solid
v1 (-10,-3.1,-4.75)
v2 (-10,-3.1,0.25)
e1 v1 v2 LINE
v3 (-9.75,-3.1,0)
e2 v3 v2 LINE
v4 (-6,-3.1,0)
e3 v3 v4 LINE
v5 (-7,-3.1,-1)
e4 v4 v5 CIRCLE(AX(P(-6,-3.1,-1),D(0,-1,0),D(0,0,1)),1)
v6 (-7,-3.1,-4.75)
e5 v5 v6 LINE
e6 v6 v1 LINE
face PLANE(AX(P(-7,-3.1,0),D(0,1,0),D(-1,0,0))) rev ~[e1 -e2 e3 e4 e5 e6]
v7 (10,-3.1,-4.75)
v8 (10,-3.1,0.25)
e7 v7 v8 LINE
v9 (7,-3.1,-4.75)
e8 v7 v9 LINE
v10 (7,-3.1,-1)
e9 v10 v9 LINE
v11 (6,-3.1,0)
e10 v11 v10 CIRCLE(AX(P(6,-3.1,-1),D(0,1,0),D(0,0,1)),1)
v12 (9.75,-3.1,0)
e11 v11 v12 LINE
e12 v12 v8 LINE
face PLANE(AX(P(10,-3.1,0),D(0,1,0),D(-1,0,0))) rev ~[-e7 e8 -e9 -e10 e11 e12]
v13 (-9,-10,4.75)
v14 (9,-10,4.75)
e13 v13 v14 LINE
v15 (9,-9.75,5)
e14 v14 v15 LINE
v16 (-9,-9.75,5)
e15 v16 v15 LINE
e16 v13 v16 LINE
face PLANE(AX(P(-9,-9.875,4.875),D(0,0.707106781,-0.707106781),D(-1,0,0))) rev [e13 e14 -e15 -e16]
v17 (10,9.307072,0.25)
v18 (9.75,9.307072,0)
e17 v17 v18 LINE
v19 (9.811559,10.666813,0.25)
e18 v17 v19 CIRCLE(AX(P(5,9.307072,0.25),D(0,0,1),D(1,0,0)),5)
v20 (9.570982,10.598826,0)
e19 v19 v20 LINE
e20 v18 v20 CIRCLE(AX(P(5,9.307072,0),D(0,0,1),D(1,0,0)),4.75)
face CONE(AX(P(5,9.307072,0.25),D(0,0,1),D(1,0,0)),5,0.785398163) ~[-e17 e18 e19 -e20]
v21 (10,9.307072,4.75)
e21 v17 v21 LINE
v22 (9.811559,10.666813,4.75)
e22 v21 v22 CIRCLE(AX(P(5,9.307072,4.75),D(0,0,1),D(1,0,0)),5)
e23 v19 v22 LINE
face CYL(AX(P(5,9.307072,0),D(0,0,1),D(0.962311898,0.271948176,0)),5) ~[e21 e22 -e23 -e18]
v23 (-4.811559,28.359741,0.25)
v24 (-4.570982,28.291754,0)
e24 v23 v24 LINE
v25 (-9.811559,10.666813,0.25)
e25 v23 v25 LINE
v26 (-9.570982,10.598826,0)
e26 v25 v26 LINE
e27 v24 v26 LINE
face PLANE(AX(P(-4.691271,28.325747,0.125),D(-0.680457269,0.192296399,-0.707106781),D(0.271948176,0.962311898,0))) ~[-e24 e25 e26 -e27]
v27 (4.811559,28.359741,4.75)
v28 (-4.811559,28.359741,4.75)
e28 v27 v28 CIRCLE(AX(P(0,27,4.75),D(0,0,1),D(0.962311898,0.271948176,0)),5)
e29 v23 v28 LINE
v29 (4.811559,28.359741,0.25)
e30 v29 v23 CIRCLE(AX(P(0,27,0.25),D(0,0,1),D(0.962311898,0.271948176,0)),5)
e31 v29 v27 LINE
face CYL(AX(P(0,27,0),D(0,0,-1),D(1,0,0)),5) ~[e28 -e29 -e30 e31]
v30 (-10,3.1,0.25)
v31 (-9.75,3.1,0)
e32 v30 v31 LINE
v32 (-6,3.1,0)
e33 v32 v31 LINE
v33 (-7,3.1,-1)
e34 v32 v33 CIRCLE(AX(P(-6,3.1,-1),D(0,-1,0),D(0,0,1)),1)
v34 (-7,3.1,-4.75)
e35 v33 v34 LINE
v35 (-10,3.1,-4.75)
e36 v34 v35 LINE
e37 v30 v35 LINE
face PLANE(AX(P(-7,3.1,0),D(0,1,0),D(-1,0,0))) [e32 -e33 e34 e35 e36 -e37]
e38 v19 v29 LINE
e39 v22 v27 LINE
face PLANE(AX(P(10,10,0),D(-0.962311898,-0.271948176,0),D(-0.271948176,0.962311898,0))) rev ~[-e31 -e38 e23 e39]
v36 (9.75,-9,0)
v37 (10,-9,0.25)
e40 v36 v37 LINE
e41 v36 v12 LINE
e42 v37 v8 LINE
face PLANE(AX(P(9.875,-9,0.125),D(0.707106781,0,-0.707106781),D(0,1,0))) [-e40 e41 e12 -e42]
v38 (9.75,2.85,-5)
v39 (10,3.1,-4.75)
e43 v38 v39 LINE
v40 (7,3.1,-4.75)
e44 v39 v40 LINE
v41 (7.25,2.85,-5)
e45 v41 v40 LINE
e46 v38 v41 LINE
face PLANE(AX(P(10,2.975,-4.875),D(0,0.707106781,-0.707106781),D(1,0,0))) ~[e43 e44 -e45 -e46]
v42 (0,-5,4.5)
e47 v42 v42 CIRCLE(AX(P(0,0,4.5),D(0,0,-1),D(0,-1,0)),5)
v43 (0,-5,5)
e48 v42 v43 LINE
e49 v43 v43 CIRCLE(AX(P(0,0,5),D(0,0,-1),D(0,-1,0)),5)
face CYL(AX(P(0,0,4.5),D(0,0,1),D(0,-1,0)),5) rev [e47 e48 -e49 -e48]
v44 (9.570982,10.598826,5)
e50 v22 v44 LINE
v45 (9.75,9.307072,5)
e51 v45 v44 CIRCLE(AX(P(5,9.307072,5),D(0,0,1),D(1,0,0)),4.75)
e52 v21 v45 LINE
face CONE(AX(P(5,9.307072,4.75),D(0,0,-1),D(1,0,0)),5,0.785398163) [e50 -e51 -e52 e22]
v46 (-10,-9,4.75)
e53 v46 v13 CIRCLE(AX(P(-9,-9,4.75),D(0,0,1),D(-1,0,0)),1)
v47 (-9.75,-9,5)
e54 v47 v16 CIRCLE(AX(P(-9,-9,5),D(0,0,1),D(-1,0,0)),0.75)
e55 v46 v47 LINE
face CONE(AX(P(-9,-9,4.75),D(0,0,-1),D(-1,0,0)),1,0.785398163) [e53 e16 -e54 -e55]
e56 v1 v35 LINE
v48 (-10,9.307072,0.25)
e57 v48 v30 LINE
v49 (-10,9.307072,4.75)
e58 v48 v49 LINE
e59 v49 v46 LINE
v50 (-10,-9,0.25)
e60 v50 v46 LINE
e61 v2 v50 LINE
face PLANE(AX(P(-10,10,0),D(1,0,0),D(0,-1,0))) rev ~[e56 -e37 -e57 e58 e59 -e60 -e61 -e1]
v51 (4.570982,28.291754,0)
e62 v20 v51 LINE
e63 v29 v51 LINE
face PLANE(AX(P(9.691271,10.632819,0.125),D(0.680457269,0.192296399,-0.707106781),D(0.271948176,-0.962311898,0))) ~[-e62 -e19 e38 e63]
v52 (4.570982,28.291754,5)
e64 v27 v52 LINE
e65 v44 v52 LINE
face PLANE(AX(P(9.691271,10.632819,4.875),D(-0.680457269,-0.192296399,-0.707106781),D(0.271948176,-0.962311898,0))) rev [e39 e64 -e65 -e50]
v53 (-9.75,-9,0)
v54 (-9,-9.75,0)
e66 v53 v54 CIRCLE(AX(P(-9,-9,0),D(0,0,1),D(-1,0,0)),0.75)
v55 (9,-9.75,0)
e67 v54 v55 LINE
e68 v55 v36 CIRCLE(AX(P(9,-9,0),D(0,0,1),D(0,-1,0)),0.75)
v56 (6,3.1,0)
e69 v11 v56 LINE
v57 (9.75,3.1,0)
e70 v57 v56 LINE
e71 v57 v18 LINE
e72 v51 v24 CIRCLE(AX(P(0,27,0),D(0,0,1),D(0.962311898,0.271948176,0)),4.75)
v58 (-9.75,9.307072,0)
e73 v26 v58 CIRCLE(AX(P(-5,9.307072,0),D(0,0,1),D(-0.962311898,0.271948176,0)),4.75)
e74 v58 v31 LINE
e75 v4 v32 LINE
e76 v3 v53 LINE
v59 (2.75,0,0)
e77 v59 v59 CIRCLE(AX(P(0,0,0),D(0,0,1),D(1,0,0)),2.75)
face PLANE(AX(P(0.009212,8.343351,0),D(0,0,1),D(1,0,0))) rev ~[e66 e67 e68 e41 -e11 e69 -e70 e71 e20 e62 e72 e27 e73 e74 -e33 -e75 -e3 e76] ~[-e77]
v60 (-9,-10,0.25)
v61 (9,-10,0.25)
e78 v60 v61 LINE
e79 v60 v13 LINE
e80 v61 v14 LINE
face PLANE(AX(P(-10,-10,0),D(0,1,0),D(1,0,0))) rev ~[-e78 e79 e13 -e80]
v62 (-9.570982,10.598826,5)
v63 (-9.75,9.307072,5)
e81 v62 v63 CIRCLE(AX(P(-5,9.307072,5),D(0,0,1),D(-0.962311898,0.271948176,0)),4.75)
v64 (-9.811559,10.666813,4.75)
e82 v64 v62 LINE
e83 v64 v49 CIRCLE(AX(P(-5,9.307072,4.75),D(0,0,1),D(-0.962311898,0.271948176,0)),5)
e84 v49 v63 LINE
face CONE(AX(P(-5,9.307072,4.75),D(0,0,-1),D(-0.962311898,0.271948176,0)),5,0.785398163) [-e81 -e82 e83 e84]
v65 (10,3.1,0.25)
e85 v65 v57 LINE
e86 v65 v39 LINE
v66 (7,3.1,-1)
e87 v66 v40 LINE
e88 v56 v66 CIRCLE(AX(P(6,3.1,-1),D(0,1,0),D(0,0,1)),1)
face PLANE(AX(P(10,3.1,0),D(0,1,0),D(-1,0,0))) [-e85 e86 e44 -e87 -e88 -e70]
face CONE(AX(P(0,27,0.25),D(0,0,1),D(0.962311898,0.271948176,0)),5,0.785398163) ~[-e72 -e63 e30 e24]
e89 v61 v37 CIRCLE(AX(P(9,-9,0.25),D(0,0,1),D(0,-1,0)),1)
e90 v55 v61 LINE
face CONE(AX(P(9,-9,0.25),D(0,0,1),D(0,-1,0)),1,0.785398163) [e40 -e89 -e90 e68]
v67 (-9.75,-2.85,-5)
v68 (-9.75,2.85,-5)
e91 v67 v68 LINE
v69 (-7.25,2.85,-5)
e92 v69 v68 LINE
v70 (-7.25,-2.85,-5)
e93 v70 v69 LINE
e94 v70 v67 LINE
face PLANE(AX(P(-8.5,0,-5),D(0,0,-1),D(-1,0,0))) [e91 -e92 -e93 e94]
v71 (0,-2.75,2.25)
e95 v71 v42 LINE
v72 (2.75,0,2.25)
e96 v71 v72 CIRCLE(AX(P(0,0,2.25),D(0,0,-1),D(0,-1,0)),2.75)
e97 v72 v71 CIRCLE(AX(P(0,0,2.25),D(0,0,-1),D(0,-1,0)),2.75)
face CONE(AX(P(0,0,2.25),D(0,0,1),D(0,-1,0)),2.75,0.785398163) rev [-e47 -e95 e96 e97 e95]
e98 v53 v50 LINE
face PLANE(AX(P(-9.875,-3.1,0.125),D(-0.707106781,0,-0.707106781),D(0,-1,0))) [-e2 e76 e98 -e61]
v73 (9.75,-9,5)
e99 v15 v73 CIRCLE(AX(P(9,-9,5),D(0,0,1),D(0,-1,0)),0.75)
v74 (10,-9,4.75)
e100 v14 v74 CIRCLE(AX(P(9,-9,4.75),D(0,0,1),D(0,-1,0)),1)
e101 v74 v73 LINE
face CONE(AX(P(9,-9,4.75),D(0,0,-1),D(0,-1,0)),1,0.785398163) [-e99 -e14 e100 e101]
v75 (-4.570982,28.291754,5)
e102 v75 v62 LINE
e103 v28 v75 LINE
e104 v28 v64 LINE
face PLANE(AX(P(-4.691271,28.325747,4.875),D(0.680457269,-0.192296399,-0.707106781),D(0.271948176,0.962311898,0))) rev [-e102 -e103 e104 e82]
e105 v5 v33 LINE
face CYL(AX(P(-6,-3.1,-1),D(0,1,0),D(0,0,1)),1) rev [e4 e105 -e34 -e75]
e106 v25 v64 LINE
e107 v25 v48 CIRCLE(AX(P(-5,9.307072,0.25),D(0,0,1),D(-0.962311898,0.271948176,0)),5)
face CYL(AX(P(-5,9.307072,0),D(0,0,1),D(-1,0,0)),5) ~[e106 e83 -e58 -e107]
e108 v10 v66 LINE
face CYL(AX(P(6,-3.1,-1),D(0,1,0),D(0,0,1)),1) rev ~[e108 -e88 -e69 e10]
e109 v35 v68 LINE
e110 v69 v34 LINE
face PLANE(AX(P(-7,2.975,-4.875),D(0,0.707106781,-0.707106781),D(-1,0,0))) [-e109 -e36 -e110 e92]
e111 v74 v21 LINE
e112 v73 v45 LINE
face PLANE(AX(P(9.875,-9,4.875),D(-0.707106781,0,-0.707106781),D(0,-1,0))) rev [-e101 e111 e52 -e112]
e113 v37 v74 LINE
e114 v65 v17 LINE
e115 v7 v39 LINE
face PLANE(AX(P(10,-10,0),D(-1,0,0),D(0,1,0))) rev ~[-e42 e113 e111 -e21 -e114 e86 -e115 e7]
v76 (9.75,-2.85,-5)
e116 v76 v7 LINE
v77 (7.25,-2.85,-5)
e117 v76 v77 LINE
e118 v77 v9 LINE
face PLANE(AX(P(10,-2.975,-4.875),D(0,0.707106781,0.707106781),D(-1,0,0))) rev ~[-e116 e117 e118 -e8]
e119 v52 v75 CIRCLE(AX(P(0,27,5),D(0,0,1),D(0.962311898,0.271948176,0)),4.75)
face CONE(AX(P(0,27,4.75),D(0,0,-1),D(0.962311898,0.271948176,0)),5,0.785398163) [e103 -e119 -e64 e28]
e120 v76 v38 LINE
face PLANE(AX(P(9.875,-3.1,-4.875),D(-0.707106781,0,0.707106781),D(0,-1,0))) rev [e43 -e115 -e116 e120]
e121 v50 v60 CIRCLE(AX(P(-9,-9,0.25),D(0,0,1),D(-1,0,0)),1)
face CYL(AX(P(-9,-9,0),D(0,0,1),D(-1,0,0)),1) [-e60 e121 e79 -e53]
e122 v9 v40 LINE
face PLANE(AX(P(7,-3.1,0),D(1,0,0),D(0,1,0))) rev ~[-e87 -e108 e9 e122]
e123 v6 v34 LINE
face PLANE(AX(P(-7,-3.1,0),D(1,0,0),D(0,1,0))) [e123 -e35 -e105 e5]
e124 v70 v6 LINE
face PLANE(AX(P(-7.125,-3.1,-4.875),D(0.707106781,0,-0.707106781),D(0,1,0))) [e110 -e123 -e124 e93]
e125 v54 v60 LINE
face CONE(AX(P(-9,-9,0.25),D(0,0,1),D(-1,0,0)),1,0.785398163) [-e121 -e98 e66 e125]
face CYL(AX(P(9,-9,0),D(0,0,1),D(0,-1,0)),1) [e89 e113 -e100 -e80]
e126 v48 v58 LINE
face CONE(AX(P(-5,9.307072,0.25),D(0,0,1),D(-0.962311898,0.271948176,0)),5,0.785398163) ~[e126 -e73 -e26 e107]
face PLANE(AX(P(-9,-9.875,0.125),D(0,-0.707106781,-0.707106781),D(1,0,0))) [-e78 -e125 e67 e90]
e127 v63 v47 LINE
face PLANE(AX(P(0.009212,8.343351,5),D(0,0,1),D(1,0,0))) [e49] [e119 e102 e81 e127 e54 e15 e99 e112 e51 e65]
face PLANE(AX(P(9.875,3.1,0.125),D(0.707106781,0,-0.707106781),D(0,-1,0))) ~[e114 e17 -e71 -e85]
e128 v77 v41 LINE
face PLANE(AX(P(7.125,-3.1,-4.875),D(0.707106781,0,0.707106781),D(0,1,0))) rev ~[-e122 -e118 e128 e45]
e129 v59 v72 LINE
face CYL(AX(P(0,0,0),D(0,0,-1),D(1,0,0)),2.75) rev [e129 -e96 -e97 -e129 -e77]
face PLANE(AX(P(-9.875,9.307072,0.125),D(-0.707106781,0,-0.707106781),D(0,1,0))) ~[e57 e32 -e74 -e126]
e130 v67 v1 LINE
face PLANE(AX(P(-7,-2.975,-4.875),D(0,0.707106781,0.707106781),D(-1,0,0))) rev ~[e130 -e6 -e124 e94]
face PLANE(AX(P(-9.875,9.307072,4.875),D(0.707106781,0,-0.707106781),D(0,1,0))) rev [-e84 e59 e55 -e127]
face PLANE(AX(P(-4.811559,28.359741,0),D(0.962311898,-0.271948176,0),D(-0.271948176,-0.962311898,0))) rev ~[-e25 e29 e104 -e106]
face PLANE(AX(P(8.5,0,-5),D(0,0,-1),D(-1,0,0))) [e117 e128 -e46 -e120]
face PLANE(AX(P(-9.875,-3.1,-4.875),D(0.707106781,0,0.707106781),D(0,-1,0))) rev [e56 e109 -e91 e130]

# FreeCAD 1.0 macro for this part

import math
import FreeCAD as App
import Part
import Sketcher

V = App.Vector
Q = App.Units.Quantity


def edges_at(feature, points):
    """Names of the edges that pass closest to the given points."""
    edges = feature.Shape.Edges
    near = lambda p: min(range(len(edges)), key=lambda i: edges[i].distToShape(Part.Vertex(*p))[0])
    return sorted({f"Edge{near(p) + 1}" for p in points})


def add_polygon(sketch, points):
    """Adds a closed chain of lines whose ends are joined by coincident constraints."""
    first, n = sketch.GeometryCount, len(points)
    for a, b in zip(points, points[1:] + points[:1]):
        sketch.addGeometry(Part.LineSegment(App.Vector(*a, 0), App.Vector(*b, 0)), False)
    for i in range(n):
        sketch.addConstraint(Sketcher.Constraint("Coincident", first + i, 2, first + (i + 1) % n, 1))

doc = App.newDocument("Part")
body = doc.addObject("PartDesign::Body", "Body")

# Sketch on XY plane
sketch1 = body.newObject("Sketcher::SketchObject", "Sketch")
sketch1.AttachmentSupport = (doc.getObject("XY_Plane"), [""])
sketch1.MapMode = "FlatFace"
sketch1.addGeometry(Part.ArcOfCircle(Part.Circle(V(0, 27, 0), V(0, 0, 1), 5), math.radians(15.780228), math.radians(164.219772)), False)
sketch1.addGeometry(Part.LineSegment(V(-4.811559, 28.359741, 0), V(-10, 10, 0)), False)
sketch1.addGeometry(Part.LineSegment(V(-10, 10, 0), V(-10, -10, 0)), False)
sketch1.addGeometry(Part.LineSegment(V(-10, -10, 0), V(10, -10, 0)), False)
sketch1.addGeometry(Part.LineSegment(V(10, -10, 0), V(10, 10, 0)), False)
sketch1.addGeometry(Part.LineSegment(V(10, 10, 0), V(4.811559, 28.359741, 0)), False)
sketch1.addGeometry(Part.Circle(V(0, 0, 0), V(0, 0, 1), 2.75), False)
sketch1.addConstraint(Sketcher.Constraint("Tangent", 0, 2, 1, 1))
sketch1.addConstraint(Sketcher.Constraint("Coincident", 1, 2, 2, 1))
sketch1.addConstraint(Sketcher.Constraint("Coincident", 2, 2, 3, 1))
sketch1.addConstraint(Sketcher.Constraint("Coincident", 3, 2, 4, 1))
sketch1.addConstraint(Sketcher.Constraint("Coincident", 4, 2, 5, 1))
sketch1.addConstraint(Sketcher.Constraint("Tangent", 5, 2, 0, 1))
sketch1.addConstraint(Sketcher.Constraint("Vertical", 2))
sketch1.addConstraint(Sketcher.Constraint("Horizontal", 3))
sketch1.addConstraint(Sketcher.Constraint("Vertical", 4))
sketch1.addConstraint(Sketcher.Constraint("Coincident", 6, 3, -1, 1))
sketch1.addConstraint(Sketcher.Constraint("Symmetric", 1, 2, 3, 2, -1, 1))
sketch1.addConstraint(Sketcher.Constraint("Symmetric", 0, 2, 5, 2, -2))
sketch1.addConstraint(Sketcher.Constraint("Equal", 3, 2))
sketch1.addConstraint(Sketcher.Constraint("Radius", 0, 5.0))
sketch1.addConstraint(Sketcher.Constraint("Diameter", 6, 5.5))
sketch1.addConstraint(Sketcher.Constraint("DistanceX", 3, 1, 3, 2, 20.0))
sketch1.addConstraint(Sketcher.Constraint("DistanceY", -1, 1, 0, 3, 27.0))
pad1 = body.newObject("PartDesign::Pad", "Pad")
pad1.Profile = sketch1
pad1.Length = 5

# Sketch on XY plane
sketch2 = body.newObject("Sketcher::SketchObject", "Sketch001")
sketch2.AttachmentSupport = (doc.getObject("XY_Plane"), [""])
sketch2.MapMode = "FlatFace"
add_polygon(sketch2, [(10, 3.1), (10, -3.1), (7, -3.1), (7, 3.1)])  # lines 0-3
add_polygon(sketch2, [(-7, 3.1), (-7, -3.1), (-10, -3.1), (-10, 3.1)])  # lines 4-7
sketch2.addConstraint(Sketcher.Constraint("Vertical", 0))
sketch2.addConstraint(Sketcher.Constraint("Horizontal", 1))
sketch2.addConstraint(Sketcher.Constraint("Vertical", 2))
sketch2.addConstraint(Sketcher.Constraint("Horizontal", 3))
sketch2.addConstraint(Sketcher.Constraint("Vertical", 4))
sketch2.addConstraint(Sketcher.Constraint("Horizontal", 5))
sketch2.addConstraint(Sketcher.Constraint("Vertical", 6))
sketch2.addConstraint(Sketcher.Constraint("Horizontal", 7))
sketch2.addConstraint(Sketcher.Constraint("Symmetric", 2, 2, 4, 2, -1, 1))
sketch2.addConstraint(Sketcher.Constraint("Symmetric", 0, 2, 6, 2, -1, 1))
sketch2.addConstraint(Sketcher.Constraint("Horizontal", 1, 2, 4, 2))
sketch2.addConstraint(Sketcher.Constraint("DistanceX", 1, 2, 1, 1, 3.0))
sketch2.addConstraint(Sketcher.Constraint("DistanceY", 0, 2, 0, 1, 6.2))
sketch2.addConstraint(Sketcher.Constraint("DistanceX", -1, 1, 0, 2, 10.0))
pad2 = body.newObject("PartDesign::Pad", "Pad001")
pad2.Profile = sketch2
pad2.Length = 5
pad2.Reversed = True
doc.recompute()

fillet = body.newObject("PartDesign::Fillet", "Fillet")
fillet.Base = (pad2, edges_at(pad2, [
    (10, -10, 2.5),
    (-10, -10, 2.5),
    (7, 0, 0),
    (-7, 0, 0),
]))
fillet.Radius = 1
doc.recompute()

fillet2 = body.newObject("PartDesign::Fillet", "Fillet001")
fillet2.Base = (fillet, edges_at(fillet, [(10, 10, 2.5), (-10, 10, 2.5)]))
fillet2.Radius = 5

# Sketch on YZ plane
sketch3 = body.newObject("Sketcher::SketchObject", "Sketch002")
sketch3.AttachmentSupport = (doc.getObject("YZ_Plane"), [""])
sketch3.MapMode = "FlatFace"
add_polygon(sketch3, [(0, -5), (0, 5), (-5, 5), (-5, 4.5), (-2.75, 2.25), (-2.75, -5)])  # lines 0-5
sketch3.addConstraint(Sketcher.Constraint("Vertical", 0))
sketch3.addConstraint(Sketcher.Constraint("Horizontal", 1))
sketch3.addConstraint(Sketcher.Constraint("Vertical", 2))
sketch3.addConstraint(Sketcher.Constraint("Vertical", 4))
sketch3.addConstraint(Sketcher.Constraint("Horizontal", 5))
sketch3.addConstraint(Sketcher.Constraint("Symmetric", 0, 2, 5, 2, -1, 1))
sketch3.addConstraint(Sketcher.Constraint("DistanceX", 1, 2, 1, 1, 5.0))
sketch3.addConstraint(Sketcher.Constraint("DistanceY", 0, 1, 0, 2, 10.0))
sketch3.addConstraint(Sketcher.Constraint("Angle", 3, Q("-45 deg")))
sketch3.addConstraint(Sketcher.Constraint("DistanceY", 2, 2, 2, 1, 0.5))
sketch3.addConstraint(Sketcher.Constraint("DistanceX", 5, 1, 5, 2, 2.75))
groove = body.newObject("PartDesign::Groove", "Groove")
groove.Profile = sketch3
groove.ReferenceAxis = (sketch3, ["V_Axis"])
groove.Angle = 360
doc.recompute()

chamfer = body.newObject("PartDesign::Chamfer", "Chamfer")
chamfer.Base = (groove, edges_at(groove, [
    (-10, 6.204, 0),
    (-7.312, 19.513, 0),
    (10, 6.204, 0),
    (-9.953, 9.993, 0),
    (9.953, 9.993, 0),
    (10, 0.154, 5),
    (-7.312, 19.513, 5),
    (-10, 0.154, 5),
    (-9.953, 9.993, 5),
    (9.953, 9.993, 5),
    (0, 32, 0),
    (10, -6.05, 0),
    (-10, -6.05, 0),
    (10, 0, -5),
    (8.5, -3.1, -5),
    (7, 0, -5),
    (8.5, 3.1, -5),
    (-7, 0, -5),
    (-8.5, -3.1, -5),
    (-10, 0, -5),
    (-8.5, 3.1, -5),
    (0, -10, 0),
    (-9.707, -9.707, 0),
    (9.707, -9.707, 0),
    (0, -10, 5),
    (0, 32, 5),
    (-9.707, -9.707, 5),
    (9.707, -9.707, 5),
    (7.312, 19.513, 0),
    (7.312, 19.513, 5),
]))
chamfer.Size = 0.25

doc.recompute()
